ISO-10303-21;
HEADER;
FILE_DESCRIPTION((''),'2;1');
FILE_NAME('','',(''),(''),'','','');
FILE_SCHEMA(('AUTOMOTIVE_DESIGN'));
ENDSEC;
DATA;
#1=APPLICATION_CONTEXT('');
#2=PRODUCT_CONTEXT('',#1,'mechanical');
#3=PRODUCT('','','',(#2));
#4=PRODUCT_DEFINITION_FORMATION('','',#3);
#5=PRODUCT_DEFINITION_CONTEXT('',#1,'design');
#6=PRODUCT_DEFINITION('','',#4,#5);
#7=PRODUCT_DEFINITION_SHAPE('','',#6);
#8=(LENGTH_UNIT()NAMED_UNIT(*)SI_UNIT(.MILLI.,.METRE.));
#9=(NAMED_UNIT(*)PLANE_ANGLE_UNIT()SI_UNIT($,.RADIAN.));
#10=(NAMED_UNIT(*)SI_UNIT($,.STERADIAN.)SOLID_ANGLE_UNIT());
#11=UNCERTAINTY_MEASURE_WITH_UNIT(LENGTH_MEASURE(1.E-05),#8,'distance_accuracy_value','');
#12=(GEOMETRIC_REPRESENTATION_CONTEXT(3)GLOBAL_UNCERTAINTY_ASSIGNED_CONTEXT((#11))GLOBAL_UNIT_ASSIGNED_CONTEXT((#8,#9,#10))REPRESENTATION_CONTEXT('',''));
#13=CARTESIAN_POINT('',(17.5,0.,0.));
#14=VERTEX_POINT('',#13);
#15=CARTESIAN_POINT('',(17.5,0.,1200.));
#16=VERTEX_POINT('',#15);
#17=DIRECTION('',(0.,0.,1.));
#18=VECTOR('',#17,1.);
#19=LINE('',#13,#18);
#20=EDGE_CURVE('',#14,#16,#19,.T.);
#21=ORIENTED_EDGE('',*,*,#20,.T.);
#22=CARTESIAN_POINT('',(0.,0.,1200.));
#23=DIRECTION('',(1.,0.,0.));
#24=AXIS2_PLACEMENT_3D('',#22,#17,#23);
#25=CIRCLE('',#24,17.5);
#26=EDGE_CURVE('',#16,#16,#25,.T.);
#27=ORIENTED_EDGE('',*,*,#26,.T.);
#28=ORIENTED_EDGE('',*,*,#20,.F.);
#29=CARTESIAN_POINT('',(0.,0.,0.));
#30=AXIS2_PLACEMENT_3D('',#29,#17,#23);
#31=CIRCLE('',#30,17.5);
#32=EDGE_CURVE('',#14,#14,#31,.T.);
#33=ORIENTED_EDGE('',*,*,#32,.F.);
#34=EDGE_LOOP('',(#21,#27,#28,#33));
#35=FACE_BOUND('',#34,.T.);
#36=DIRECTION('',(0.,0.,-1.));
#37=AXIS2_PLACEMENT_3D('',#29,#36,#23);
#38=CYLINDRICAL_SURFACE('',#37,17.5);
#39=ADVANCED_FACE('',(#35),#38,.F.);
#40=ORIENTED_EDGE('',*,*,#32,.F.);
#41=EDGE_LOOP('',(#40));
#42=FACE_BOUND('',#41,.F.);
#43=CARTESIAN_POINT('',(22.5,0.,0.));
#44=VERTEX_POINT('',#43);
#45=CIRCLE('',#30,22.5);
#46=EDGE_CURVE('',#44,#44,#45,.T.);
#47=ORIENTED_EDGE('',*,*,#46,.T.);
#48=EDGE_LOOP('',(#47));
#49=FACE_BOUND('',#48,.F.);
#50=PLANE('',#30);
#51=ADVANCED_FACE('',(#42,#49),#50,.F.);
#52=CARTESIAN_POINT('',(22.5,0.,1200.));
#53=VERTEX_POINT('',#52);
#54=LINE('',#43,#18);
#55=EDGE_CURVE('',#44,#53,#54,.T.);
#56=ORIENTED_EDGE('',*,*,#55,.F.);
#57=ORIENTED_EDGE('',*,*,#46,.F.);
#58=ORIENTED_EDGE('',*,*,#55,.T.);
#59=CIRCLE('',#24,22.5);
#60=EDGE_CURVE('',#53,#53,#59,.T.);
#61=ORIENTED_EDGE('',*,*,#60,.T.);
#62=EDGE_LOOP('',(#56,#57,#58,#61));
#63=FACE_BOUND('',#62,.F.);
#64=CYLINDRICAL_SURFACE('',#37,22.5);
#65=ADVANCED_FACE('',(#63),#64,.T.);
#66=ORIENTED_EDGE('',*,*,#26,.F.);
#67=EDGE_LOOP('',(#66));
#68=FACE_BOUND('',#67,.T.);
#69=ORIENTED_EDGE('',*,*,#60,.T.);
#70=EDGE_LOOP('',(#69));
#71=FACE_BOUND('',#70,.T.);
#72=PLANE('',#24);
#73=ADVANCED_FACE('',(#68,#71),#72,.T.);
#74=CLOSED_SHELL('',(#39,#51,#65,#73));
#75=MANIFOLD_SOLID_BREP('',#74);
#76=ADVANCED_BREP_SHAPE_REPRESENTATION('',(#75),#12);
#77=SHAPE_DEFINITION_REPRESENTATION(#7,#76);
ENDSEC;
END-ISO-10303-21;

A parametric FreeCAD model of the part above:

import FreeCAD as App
import Part
import Sketcher

V = App.Vector

doc = App.newDocument("Part")
params = doc.addObject("Spreadsheet::Sheet", "Params")
for row, (alias, value) in enumerate([
    ("sketch1_diameter", "45 mm"),
    ("sketch1_diameter2", "35 mm"),
    ("pad1_length", "1200 mm"),
], start=1):
    params.set(f"A{row}", alias)
    params.set(f"B{row}", "=" + value)
    params.setAlias(f"B{row}", alias)

body = doc.addObject("PartDesign::Body", "Body")

sketch1 = body.newObject("Sketcher::SketchObject", "Sketch")
sketch1.AttachmentSupport = (doc.getObject("XY_Plane"), [""])
sketch1.MapMode = "FlatFace"
sketch1.addGeometry([
    Part.Circle(V(0, 0, 0), V(0, 0, 1), 22),
    Part.Circle(V(0, 0, 0), V(0, 0, 1), 18),
], False)
sketch1.addConstraint([
    Sketcher.Constraint("Coincident", 0, 3, -1, 1),
    Sketcher.Constraint("Coincident", 1, 3, -1, 1),
    Sketcher.Constraint("Diameter", 0, 45.0),
    Sketcher.Constraint("Diameter", 1, 35.0),
])
sketch1.setExpression("Constraints[2]", "Params.sketch1_diameter")
sketch1.setExpression("Constraints[3]", "Params.sketch1_diameter2")
pad1 = body.newObject("PartDesign::Pad", "Pad")
pad1.Profile = sketch1
pad1.setExpression("Length", "Params.pad1_length")

doc.recompute()
